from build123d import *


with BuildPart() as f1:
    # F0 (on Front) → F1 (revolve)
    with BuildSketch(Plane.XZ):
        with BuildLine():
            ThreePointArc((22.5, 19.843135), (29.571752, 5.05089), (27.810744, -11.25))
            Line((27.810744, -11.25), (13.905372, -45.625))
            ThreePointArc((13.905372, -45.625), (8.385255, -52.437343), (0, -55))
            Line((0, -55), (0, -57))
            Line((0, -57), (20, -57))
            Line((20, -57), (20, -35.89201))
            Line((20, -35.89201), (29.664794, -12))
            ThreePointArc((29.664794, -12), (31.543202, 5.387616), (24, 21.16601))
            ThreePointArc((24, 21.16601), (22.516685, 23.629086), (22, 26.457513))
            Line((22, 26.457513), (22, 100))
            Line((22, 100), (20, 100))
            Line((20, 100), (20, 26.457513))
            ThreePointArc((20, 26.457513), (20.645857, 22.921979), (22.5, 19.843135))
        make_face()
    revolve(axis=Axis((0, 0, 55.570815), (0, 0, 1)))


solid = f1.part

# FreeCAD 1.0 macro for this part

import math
import FreeCAD as App
import Part
import Sketcher

V = App.Vector

doc = App.newDocument("Part")
body = doc.addObject("PartDesign::Body", "Body")

# Sketch on XZ plane
sketch1 = body.newObject("Sketcher::SketchObject", "Sketch")
sketch1.AttachmentSupport = (doc.getObject("XZ_Plane"), [""])
sketch1.MapMode = "FlatFace"
sketch1.addGeometry(Part.ArcOfCircle(Part.Circle(V(0, 0, 0), V(0, 0, 1), 30), math.radians(-22), math.radians(41)), False)
sketch1.addGeometry(Part.LineSegment(V(27.8, -11.2, 0), V(13.9, -45.6, 0)), False)
sketch1.addGeometry(Part.ArcOfCircle(Part.Circle(V(0, -40, 0), V(0, 0, 1), 15), math.radians(-90), math.radians(-22)), False)
sketch1.addGeometry(Part.LineSegment(V(0, -55, 0), V(0, -57, 0)), False)
sketch1.addGeometry(Part.LineSegment(V(0, -57, 0), V(20, -57, 0)), False)
sketch1.addGeometry(Part.LineSegment(V(20, -57, 0), V(20, -35.9, 0)), False)
sketch1.addGeometry(Part.LineSegment(V(20, -35.9, 0), V(29.7, -12, 0)), False)
sketch1.addGeometry(Part.ArcOfCircle(Part.Circle(V(0, 0, 0), V(0, 0, 1), 32), math.radians(-22), math.radians(41)), False)
sketch1.addGeometry(Part.ArcOfCircle(Part.Circle(V(30, 26.5, 0), V(0, 0, 1), 8), math.radians(180), math.radians(221)), False)
sketch1.addGeometry(Part.LineSegment(V(22, 26.5, 0), V(22, 100, 0)), False)
sketch1.addGeometry(Part.LineSegment(V(22, 100, 0), V(20, 100, 0)), False)
sketch1.addGeometry(Part.LineSegment(V(20, 100, 0), V(20, 26.5, 0)), False)
sketch1.addGeometry(Part.ArcOfCircle(Part.Circle(V(30, 26.5, 0), V(0, 0, 1), 10), math.radians(-180), math.radians(-139)), False)
sketch1.addConstraint(Sketcher.Constraint("Tangent", 0, 1, 1, 1))
sketch1.addConstraint(Sketcher.Constraint("Tangent", 1, 2, 2, 2))
sketch1.addConstraint(Sketcher.Constraint("Coincident", 2, 1, 3, 1))
sketch1.addConstraint(Sketcher.Constraint("Coincident", 3, 2, 4, 1))
sketch1.addConstraint(Sketcher.Constraint("Coincident", 4, 2, 5, 1))
sketch1.addConstraint(Sketcher.Constraint("Coincident", 5, 2, 6, 1))
sketch1.addConstraint(Sketcher.Constraint("Tangent", 6, 2, 7, 1))
sketch1.addConstraint(Sketcher.Constraint("Tangent", 7, 2, 8, 2))
sketch1.addConstraint(Sketcher.Constraint("Tangent", 8, 1, 9, 1))
sketch1.addConstraint(Sketcher.Constraint("Coincident", 9, 2, 10, 1))
sketch1.addConstraint(Sketcher.Constraint("Coincident", 10, 2, 11, 1))
sketch1.addConstraint(Sketcher.Constraint("Tangent", 11, 2, 12, 1))
sketch1.addConstraint(Sketcher.Constraint("Tangent", 12, 2, 0, 2))
sketch1.addConstraint(Sketcher.Constraint("Vertical", 3))
sketch1.addConstraint(Sketcher.Constraint("Horizontal", 4))
sketch1.addConstraint(Sketcher.Constraint("Vertical", 5))
sketch1.addConstraint(Sketcher.Constraint("Vertical", 9))
sketch1.addConstraint(Sketcher.Constraint("Horizontal", 10))
sketch1.addConstraint(Sketcher.Constraint("Vertical", 11))
sketch1.addConstraint(Sketcher.Constraint("Coincident", 0, 3, -1, 1))
sketch1.addConstraint(Sketcher.Constraint("Coincident", 7, 3, -1, 1))
sketch1.addConstraint(Sketcher.Constraint("Coincident", 12, 3, 8, 3))
sketch1.addConstraint(Sketcher.Constraint("PointOnObject", 2, 3, -2))
sketch1.addConstraint(Sketcher.Constraint("PointOnObject", 2, 1, -2))
sketch1.addConstraint(Sketcher.Constraint("Parallel", 1, 6))
sketch1.addConstraint(Sketcher.Constraint("Vertical", 5, 2, 10, 2))
sketch1.addConstraint(Sketcher.Constraint("Equal", 10, 3))
sketch1.addConstraint(Sketcher.Constraint("Radius", 0, 29.999999))
sketch1.addConstraint(Sketcher.Constraint("Radius", 2, 14.999999))
sketch1.addConstraint(Sketcher.Constraint("Radius", 7, 31.999999))
sketch1.addConstraint(Sketcher.Constraint("Radius", 8, 8.0))
sketch1.addConstraint(Sketcher.Constraint("DistanceX", 4, 1, 4, 2, 20.0))
sketch1.addConstraint(Sketcher.Constraint("DistanceY", 2, 3, -1, 1, 40.000001))
sketch1.addConstraint(Sketcher.Constraint("DistanceY", -1, 1, 9, 2, 100.0))
revolution = body.newObject("PartDesign::Revolution", "Revolution")
revolution.Profile = sketch1
revolution.ReferenceAxis = (sketch1, ["V_Axis"])
revolution.Angle = 360

doc.recompute()
